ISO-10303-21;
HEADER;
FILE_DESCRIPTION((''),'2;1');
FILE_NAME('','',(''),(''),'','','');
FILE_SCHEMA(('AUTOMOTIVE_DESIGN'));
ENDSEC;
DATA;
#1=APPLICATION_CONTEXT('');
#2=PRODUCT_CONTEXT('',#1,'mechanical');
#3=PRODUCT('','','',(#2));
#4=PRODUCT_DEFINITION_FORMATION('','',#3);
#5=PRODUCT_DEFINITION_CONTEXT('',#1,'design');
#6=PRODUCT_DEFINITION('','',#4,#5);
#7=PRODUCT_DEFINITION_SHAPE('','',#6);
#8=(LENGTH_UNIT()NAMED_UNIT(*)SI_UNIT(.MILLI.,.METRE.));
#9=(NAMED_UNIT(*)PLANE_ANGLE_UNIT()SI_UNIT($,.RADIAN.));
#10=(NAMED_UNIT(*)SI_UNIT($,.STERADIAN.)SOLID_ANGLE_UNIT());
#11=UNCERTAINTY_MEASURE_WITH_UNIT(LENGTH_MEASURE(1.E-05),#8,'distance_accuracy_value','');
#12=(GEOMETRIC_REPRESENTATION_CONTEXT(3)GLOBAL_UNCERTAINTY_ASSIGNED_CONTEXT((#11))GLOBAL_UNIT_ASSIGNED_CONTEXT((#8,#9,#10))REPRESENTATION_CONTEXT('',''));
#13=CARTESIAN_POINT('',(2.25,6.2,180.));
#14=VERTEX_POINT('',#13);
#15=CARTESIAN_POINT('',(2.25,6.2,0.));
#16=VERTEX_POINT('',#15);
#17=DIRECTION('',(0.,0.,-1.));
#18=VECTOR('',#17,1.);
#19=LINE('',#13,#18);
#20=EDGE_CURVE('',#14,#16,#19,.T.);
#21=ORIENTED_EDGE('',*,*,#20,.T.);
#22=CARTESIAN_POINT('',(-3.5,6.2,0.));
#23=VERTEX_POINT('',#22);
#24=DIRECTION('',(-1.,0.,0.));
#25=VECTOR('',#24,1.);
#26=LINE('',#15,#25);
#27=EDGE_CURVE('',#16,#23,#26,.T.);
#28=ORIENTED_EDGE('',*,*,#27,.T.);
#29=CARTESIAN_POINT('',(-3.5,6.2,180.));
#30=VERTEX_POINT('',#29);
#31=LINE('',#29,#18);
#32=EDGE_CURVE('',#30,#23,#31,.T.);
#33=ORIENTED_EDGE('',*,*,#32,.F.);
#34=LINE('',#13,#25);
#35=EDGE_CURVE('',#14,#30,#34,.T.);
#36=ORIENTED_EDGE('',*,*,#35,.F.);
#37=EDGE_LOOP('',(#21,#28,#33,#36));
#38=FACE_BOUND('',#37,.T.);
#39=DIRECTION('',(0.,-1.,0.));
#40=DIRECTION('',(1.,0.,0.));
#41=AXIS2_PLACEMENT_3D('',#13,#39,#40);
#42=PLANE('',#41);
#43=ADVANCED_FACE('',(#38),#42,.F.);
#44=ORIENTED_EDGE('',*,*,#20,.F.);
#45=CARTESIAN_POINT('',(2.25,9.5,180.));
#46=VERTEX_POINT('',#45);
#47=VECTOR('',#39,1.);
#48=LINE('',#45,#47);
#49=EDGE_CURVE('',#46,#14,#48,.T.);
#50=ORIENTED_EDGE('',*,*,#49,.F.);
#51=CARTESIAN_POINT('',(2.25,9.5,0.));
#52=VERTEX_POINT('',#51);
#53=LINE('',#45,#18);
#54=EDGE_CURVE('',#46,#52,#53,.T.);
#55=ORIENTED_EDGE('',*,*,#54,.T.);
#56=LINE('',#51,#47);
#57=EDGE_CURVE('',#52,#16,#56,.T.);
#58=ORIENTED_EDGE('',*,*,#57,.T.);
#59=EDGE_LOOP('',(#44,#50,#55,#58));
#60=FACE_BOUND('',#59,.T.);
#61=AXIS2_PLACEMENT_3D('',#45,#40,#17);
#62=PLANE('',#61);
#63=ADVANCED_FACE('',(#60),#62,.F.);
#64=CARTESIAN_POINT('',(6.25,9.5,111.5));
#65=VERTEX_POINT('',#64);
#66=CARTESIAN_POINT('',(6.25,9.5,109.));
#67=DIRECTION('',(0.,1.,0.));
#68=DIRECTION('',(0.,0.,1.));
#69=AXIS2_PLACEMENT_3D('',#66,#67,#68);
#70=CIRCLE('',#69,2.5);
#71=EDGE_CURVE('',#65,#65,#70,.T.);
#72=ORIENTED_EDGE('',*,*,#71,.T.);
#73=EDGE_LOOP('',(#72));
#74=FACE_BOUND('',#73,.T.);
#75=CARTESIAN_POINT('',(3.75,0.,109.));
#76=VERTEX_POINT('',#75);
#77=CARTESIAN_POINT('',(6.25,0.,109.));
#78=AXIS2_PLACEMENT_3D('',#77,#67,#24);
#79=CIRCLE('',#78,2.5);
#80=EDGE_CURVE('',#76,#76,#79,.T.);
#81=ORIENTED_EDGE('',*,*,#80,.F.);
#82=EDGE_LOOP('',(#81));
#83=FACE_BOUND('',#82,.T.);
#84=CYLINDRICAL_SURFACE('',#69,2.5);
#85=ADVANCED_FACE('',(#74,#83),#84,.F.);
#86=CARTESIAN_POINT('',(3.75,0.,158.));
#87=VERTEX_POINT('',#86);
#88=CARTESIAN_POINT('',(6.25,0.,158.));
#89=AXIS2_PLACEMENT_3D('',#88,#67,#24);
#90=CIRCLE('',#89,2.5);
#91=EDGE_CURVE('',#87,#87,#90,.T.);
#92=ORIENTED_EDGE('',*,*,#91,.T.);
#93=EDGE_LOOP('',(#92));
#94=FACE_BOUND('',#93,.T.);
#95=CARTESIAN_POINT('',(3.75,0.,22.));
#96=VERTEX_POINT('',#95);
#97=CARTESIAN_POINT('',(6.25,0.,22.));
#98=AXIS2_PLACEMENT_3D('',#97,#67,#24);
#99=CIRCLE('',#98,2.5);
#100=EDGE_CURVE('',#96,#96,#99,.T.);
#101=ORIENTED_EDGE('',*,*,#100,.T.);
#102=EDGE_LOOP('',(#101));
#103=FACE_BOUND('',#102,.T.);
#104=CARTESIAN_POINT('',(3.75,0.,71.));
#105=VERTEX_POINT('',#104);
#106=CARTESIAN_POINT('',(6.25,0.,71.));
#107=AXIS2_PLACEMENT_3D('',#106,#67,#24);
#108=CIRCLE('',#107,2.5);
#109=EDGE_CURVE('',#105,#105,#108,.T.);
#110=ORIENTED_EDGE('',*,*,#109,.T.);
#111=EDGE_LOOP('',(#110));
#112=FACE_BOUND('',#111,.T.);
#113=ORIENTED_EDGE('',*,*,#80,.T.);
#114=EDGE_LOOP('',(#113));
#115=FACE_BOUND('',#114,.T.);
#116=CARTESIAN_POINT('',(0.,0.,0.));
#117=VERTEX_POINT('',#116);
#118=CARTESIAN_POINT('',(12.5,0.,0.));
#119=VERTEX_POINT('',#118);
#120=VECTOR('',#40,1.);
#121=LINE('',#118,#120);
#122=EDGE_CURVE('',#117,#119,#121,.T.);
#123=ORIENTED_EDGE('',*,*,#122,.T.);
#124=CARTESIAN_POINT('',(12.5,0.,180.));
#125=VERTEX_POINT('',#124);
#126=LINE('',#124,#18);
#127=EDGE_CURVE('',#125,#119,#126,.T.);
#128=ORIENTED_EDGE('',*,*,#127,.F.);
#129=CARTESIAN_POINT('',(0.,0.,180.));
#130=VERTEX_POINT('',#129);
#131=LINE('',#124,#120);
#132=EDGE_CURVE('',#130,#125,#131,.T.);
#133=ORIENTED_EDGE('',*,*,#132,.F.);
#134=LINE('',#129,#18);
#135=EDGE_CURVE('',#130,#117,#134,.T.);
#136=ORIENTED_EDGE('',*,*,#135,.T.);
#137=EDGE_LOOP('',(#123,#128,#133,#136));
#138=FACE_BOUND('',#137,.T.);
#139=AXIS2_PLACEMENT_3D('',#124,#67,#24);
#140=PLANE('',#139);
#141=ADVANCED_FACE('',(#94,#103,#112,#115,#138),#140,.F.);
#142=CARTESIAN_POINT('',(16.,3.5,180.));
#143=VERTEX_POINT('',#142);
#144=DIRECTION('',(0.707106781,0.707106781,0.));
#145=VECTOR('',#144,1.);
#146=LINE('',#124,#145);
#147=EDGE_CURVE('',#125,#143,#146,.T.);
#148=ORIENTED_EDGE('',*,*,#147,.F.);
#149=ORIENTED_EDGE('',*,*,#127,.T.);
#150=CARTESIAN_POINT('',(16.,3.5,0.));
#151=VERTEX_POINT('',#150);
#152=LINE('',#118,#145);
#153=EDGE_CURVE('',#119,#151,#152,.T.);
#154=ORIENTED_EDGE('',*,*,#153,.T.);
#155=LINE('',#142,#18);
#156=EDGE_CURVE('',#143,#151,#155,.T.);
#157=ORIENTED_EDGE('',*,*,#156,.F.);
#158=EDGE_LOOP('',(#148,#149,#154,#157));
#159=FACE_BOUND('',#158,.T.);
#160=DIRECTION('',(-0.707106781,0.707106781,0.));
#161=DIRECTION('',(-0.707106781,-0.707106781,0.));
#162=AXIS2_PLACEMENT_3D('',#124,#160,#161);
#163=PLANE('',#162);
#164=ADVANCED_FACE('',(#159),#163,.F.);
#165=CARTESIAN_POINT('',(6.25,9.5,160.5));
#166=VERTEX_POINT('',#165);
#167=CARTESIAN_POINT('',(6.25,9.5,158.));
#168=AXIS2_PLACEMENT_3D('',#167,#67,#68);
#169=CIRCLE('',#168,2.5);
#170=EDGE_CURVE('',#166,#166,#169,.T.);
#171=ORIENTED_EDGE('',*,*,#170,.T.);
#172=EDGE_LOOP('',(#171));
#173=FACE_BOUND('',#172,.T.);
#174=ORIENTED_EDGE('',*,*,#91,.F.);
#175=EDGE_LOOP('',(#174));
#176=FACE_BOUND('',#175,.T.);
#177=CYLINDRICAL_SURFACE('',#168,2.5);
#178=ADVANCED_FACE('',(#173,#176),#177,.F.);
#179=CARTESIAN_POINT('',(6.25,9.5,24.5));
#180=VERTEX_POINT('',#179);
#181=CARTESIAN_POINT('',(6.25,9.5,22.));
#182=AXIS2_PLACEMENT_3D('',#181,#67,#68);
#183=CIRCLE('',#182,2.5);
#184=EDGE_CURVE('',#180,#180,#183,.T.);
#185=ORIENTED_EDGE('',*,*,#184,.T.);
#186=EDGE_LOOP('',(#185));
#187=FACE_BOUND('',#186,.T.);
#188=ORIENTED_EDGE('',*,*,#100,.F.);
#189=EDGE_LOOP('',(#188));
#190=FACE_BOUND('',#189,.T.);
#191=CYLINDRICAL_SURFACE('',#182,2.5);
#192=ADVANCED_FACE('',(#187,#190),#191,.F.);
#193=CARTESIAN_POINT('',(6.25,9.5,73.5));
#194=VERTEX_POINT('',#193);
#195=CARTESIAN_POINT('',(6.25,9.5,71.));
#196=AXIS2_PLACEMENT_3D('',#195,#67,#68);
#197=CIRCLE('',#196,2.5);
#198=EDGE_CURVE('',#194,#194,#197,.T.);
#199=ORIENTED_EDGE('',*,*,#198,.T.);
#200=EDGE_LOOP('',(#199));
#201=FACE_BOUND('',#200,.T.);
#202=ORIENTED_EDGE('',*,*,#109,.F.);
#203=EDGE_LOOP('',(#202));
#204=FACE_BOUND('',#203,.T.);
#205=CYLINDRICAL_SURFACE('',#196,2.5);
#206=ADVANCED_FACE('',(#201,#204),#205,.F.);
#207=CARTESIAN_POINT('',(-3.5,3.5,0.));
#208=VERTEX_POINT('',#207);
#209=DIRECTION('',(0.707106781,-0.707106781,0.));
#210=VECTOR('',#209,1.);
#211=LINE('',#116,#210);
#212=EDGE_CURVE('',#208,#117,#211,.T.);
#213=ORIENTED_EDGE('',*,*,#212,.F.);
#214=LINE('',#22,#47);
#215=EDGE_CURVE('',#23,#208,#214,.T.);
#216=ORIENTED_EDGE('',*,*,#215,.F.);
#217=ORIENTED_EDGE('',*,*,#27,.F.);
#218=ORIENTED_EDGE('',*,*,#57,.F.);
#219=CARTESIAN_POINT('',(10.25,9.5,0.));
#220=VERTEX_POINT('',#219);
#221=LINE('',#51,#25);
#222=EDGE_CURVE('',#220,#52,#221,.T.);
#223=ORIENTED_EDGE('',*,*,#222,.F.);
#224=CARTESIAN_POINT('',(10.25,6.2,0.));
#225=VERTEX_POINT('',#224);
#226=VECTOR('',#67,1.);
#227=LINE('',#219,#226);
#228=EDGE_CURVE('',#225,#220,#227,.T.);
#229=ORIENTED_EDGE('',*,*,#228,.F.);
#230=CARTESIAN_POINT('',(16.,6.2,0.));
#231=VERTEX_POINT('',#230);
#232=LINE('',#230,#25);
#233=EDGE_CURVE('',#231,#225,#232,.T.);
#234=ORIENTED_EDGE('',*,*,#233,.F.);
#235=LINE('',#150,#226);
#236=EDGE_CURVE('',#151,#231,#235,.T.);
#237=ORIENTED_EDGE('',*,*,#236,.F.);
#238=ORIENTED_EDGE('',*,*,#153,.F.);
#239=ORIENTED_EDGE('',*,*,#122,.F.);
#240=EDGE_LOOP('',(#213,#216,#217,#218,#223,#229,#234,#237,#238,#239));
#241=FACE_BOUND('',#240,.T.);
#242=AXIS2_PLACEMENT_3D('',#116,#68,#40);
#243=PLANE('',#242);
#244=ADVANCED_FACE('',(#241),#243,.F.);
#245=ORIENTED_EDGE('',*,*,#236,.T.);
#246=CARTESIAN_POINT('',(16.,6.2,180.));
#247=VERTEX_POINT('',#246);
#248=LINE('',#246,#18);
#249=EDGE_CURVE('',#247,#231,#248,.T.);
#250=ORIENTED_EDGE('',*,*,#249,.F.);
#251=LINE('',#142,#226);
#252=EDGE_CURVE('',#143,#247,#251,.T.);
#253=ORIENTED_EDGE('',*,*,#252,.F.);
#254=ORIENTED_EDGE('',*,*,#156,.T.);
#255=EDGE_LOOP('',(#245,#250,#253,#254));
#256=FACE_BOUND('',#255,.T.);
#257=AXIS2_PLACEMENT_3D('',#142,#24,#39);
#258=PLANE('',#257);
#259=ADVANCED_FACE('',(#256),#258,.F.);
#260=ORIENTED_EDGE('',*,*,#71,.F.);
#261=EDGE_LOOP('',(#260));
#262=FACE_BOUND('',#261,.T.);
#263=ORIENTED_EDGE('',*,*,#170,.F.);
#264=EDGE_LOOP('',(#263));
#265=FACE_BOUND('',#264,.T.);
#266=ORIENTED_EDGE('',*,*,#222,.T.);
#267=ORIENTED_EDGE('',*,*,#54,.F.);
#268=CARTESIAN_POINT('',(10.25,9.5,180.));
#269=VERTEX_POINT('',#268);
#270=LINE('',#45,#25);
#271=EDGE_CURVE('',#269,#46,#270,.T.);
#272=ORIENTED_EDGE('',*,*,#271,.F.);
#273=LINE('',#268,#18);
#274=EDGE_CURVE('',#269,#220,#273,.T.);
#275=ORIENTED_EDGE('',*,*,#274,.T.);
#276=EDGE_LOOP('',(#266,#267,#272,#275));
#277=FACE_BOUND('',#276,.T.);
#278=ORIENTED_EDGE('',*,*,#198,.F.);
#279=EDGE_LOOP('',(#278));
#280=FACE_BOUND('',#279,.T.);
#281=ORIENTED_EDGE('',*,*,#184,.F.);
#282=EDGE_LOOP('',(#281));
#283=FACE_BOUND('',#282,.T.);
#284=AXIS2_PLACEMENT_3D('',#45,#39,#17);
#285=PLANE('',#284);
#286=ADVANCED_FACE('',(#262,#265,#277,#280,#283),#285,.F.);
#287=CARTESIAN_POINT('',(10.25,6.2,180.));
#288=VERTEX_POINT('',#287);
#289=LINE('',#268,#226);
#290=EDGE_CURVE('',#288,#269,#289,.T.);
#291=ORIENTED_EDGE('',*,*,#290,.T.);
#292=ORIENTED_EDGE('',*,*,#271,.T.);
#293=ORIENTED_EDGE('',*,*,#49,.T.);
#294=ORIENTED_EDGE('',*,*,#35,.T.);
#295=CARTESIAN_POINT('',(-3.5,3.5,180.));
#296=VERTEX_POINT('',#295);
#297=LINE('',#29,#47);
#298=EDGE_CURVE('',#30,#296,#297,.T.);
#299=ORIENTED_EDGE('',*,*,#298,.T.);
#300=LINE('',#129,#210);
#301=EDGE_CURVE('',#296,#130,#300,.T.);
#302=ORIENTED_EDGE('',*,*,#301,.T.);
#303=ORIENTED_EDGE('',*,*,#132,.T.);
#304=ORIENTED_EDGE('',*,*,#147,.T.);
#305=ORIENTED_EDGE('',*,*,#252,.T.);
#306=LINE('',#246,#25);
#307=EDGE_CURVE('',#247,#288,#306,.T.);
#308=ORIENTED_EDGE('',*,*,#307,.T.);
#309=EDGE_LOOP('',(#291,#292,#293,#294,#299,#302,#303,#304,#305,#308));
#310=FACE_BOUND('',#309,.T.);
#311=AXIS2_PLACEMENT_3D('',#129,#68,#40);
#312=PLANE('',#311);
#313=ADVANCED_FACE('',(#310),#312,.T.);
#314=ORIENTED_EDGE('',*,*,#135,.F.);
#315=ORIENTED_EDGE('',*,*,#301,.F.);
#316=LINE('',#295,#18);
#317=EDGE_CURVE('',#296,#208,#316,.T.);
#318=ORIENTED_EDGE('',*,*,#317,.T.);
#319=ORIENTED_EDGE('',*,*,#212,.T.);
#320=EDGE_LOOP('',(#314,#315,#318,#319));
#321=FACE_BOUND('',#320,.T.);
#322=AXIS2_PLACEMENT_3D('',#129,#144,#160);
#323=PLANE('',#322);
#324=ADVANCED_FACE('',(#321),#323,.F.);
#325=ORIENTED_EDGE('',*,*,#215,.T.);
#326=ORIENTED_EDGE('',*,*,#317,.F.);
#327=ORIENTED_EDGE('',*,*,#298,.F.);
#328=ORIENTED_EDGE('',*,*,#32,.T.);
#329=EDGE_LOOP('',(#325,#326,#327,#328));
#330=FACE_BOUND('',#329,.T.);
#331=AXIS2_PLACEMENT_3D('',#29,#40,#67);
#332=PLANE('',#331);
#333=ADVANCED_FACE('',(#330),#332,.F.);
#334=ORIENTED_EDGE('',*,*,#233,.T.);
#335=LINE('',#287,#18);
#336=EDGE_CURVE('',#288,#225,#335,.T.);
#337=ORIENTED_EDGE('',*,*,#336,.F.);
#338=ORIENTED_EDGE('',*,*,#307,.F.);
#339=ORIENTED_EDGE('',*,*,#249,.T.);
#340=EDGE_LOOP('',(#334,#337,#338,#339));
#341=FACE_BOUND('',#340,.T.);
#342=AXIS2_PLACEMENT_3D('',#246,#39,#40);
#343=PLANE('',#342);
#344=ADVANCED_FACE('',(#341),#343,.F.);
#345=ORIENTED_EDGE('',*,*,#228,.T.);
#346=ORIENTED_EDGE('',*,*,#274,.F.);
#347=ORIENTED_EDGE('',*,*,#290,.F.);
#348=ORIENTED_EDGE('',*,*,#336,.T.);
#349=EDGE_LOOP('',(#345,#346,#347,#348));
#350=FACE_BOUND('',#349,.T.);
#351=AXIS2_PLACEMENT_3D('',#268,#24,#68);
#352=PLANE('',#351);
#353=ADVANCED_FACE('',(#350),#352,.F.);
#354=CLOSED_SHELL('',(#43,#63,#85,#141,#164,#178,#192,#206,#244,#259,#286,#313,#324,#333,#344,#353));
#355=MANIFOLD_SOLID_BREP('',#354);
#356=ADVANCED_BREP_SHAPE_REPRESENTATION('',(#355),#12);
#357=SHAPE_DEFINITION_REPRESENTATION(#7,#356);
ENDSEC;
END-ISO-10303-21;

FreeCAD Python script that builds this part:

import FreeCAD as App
import Part
import Sketcher

V = App.Vector


def add_polygon(sketch, points):
    """Adds a closed chain of lines whose ends are joined by coincident constraints."""
    first, n = sketch.GeometryCount, len(points)
    for a, b in zip(points, points[1:] + points[:1]):
        sketch.addGeometry(Part.LineSegment(App.Vector(*a, 0), App.Vector(*b, 0)), False)
    for i in range(n):
        sketch.addConstraint(Sketcher.Constraint("Coincident", first + i, 2, first + (i + 1) % n, 1))

doc = App.newDocument("Part")
body = doc.addObject("PartDesign::Body", "Body")

# Sketch on XY plane
sketch1 = body.newObject("Sketcher::SketchObject", "Sketch")
sketch1.AttachmentSupport = (doc.getObject("XY_Plane"), [""])
sketch1.MapMode = "FlatFace"
add_polygon(sketch1, [(0, 0), (12.5, 0), (16, 3.5), (16, 6.2), (10.2, 6.2), (10.2, 9.5), (2.2, 9.5), (2.2, 6.2), (-3.5, 6.2), (-3.5, 3.5)])  # lines 0-9
sketch1.addConstraint(Sketcher.Constraint("Horizontal", 0))
sketch1.addConstraint(Sketcher.Constraint("Vertical", 2))
sketch1.addConstraint(Sketcher.Constraint("Horizontal", 3))
sketch1.addConstraint(Sketcher.Constraint("Vertical", 4))
sketch1.addConstraint(Sketcher.Constraint("Horizontal", 5))
sketch1.addConstraint(Sketcher.Constraint("Vertical", 6))
sketch1.addConstraint(Sketcher.Constraint("Horizontal", 7))
sketch1.addConstraint(Sketcher.Constraint("Vertical", 8))
sketch1.addConstraint(Sketcher.Constraint("Coincident", 9, 2, -1, 1))
sketch1.addConstraint(Sketcher.Constraint("Perpendicular", 1, 9))
sketch1.addConstraint(Sketcher.Constraint("Horizontal", 3, 2, 6, 2))
sketch1.addConstraint(Sketcher.Constraint("Horizontal", 1, 2, 8, 2))
sketch1.addConstraint(Sketcher.Constraint("Equal", 3, 7))
sketch1.addConstraint(Sketcher.Constraint("Equal", 1, 9))
sketch1.addConstraint(Sketcher.Constraint("DistanceX", 5, 2, 5, 1, 8.0))
sketch1.addConstraint(Sketcher.Constraint("DistanceX", 0, 1, 0, 2, 12.5))
sketch1.addConstraint(Sketcher.Constraint("DistanceY", 2, 1, 2, 2, 2.7))
sketch1.addConstraint(Sketcher.Constraint("DistanceY", 4, 1, 4, 2, 3.3))
sketch1.addConstraint(Sketcher.Constraint("DistanceX", -1, 1, 1, 2, 16.0))
pad1 = body.newObject("PartDesign::Pad", "Pad")
pad1.Profile = sketch1
pad1.Length = 180

# Sketch on XZ plane
sketch2 = body.newObject("Sketcher::SketchObject", "Sketch001")
sketch2.AttachmentSupport = (doc.getObject("XZ_Plane"), [""])
sketch2.MapMode = "FlatFace"
sketch2.AttachmentOffset = App.Placement(V(0, 0, -9.5), App.Rotation())
sketch2.addGeometry(Part.Circle(V(6.2, 158, 0), V(0, 0, 1), 2.5), False)
sketch2.addGeometry(Part.Circle(V(6.2, 109, 0), V(0, 0, 1), 2.5), False)
sketch2.addGeometry(Part.Circle(V(6.2, 22, 0), V(0, 0, 1), 2.5), False)
sketch2.addGeometry(Part.Circle(V(6.2, 71, 0), V(0, 0, 1), 2.5), False)
sketch2.addConstraint(Sketcher.Constraint("Equal", 0, 1))
sketch2.addConstraint(Sketcher.Constraint("Equal", 1, 2))
sketch2.addConstraint(Sketcher.Constraint("Equal", 2, 3))
sketch2.addConstraint(Sketcher.Constraint("Vertical", 0, 3, 1, 3))
sketch2.addConstraint(Sketcher.Constraint("Vertical", 1, 3, 2, 3))
sketch2.addConstraint(Sketcher.Constraint("Vertical", 2, 3, 3, 3))
sketch2.addConstraint(Sketcher.Constraint("Diameter", 0, 5.0))
sketch2.addConstraint(Sketcher.Constraint("DistanceY", -1, 1, 0, 3, 158.0))
sketch2.addConstraint(Sketcher.Constraint("DistanceY", -1, 1, 1, 3, 109.0))
sketch2.addConstraint(Sketcher.Constraint("DistanceY", -1, 1, 2, 3, 22.0))
sketch2.addConstraint(Sketcher.Constraint("DistanceY", -1, 1, 3, 3, 71.0))
sketch2.addConstraint(Sketcher.Constraint("DistanceX", -1, 1, 0, 3, 6.25))
doc.recompute()
hole = body.newObject("PartDesign::Hole", "Hole")
hole.Profile = sketch2
hole.ThreadType = "None"
hole.Diameter = 5
hole.DepthType = "Dimension"
hole.Depth = 28
hole.DrillPoint = "Angled"
hole.DrillPointAngle = 118
hole.Reversed = True

doc.recompute()
